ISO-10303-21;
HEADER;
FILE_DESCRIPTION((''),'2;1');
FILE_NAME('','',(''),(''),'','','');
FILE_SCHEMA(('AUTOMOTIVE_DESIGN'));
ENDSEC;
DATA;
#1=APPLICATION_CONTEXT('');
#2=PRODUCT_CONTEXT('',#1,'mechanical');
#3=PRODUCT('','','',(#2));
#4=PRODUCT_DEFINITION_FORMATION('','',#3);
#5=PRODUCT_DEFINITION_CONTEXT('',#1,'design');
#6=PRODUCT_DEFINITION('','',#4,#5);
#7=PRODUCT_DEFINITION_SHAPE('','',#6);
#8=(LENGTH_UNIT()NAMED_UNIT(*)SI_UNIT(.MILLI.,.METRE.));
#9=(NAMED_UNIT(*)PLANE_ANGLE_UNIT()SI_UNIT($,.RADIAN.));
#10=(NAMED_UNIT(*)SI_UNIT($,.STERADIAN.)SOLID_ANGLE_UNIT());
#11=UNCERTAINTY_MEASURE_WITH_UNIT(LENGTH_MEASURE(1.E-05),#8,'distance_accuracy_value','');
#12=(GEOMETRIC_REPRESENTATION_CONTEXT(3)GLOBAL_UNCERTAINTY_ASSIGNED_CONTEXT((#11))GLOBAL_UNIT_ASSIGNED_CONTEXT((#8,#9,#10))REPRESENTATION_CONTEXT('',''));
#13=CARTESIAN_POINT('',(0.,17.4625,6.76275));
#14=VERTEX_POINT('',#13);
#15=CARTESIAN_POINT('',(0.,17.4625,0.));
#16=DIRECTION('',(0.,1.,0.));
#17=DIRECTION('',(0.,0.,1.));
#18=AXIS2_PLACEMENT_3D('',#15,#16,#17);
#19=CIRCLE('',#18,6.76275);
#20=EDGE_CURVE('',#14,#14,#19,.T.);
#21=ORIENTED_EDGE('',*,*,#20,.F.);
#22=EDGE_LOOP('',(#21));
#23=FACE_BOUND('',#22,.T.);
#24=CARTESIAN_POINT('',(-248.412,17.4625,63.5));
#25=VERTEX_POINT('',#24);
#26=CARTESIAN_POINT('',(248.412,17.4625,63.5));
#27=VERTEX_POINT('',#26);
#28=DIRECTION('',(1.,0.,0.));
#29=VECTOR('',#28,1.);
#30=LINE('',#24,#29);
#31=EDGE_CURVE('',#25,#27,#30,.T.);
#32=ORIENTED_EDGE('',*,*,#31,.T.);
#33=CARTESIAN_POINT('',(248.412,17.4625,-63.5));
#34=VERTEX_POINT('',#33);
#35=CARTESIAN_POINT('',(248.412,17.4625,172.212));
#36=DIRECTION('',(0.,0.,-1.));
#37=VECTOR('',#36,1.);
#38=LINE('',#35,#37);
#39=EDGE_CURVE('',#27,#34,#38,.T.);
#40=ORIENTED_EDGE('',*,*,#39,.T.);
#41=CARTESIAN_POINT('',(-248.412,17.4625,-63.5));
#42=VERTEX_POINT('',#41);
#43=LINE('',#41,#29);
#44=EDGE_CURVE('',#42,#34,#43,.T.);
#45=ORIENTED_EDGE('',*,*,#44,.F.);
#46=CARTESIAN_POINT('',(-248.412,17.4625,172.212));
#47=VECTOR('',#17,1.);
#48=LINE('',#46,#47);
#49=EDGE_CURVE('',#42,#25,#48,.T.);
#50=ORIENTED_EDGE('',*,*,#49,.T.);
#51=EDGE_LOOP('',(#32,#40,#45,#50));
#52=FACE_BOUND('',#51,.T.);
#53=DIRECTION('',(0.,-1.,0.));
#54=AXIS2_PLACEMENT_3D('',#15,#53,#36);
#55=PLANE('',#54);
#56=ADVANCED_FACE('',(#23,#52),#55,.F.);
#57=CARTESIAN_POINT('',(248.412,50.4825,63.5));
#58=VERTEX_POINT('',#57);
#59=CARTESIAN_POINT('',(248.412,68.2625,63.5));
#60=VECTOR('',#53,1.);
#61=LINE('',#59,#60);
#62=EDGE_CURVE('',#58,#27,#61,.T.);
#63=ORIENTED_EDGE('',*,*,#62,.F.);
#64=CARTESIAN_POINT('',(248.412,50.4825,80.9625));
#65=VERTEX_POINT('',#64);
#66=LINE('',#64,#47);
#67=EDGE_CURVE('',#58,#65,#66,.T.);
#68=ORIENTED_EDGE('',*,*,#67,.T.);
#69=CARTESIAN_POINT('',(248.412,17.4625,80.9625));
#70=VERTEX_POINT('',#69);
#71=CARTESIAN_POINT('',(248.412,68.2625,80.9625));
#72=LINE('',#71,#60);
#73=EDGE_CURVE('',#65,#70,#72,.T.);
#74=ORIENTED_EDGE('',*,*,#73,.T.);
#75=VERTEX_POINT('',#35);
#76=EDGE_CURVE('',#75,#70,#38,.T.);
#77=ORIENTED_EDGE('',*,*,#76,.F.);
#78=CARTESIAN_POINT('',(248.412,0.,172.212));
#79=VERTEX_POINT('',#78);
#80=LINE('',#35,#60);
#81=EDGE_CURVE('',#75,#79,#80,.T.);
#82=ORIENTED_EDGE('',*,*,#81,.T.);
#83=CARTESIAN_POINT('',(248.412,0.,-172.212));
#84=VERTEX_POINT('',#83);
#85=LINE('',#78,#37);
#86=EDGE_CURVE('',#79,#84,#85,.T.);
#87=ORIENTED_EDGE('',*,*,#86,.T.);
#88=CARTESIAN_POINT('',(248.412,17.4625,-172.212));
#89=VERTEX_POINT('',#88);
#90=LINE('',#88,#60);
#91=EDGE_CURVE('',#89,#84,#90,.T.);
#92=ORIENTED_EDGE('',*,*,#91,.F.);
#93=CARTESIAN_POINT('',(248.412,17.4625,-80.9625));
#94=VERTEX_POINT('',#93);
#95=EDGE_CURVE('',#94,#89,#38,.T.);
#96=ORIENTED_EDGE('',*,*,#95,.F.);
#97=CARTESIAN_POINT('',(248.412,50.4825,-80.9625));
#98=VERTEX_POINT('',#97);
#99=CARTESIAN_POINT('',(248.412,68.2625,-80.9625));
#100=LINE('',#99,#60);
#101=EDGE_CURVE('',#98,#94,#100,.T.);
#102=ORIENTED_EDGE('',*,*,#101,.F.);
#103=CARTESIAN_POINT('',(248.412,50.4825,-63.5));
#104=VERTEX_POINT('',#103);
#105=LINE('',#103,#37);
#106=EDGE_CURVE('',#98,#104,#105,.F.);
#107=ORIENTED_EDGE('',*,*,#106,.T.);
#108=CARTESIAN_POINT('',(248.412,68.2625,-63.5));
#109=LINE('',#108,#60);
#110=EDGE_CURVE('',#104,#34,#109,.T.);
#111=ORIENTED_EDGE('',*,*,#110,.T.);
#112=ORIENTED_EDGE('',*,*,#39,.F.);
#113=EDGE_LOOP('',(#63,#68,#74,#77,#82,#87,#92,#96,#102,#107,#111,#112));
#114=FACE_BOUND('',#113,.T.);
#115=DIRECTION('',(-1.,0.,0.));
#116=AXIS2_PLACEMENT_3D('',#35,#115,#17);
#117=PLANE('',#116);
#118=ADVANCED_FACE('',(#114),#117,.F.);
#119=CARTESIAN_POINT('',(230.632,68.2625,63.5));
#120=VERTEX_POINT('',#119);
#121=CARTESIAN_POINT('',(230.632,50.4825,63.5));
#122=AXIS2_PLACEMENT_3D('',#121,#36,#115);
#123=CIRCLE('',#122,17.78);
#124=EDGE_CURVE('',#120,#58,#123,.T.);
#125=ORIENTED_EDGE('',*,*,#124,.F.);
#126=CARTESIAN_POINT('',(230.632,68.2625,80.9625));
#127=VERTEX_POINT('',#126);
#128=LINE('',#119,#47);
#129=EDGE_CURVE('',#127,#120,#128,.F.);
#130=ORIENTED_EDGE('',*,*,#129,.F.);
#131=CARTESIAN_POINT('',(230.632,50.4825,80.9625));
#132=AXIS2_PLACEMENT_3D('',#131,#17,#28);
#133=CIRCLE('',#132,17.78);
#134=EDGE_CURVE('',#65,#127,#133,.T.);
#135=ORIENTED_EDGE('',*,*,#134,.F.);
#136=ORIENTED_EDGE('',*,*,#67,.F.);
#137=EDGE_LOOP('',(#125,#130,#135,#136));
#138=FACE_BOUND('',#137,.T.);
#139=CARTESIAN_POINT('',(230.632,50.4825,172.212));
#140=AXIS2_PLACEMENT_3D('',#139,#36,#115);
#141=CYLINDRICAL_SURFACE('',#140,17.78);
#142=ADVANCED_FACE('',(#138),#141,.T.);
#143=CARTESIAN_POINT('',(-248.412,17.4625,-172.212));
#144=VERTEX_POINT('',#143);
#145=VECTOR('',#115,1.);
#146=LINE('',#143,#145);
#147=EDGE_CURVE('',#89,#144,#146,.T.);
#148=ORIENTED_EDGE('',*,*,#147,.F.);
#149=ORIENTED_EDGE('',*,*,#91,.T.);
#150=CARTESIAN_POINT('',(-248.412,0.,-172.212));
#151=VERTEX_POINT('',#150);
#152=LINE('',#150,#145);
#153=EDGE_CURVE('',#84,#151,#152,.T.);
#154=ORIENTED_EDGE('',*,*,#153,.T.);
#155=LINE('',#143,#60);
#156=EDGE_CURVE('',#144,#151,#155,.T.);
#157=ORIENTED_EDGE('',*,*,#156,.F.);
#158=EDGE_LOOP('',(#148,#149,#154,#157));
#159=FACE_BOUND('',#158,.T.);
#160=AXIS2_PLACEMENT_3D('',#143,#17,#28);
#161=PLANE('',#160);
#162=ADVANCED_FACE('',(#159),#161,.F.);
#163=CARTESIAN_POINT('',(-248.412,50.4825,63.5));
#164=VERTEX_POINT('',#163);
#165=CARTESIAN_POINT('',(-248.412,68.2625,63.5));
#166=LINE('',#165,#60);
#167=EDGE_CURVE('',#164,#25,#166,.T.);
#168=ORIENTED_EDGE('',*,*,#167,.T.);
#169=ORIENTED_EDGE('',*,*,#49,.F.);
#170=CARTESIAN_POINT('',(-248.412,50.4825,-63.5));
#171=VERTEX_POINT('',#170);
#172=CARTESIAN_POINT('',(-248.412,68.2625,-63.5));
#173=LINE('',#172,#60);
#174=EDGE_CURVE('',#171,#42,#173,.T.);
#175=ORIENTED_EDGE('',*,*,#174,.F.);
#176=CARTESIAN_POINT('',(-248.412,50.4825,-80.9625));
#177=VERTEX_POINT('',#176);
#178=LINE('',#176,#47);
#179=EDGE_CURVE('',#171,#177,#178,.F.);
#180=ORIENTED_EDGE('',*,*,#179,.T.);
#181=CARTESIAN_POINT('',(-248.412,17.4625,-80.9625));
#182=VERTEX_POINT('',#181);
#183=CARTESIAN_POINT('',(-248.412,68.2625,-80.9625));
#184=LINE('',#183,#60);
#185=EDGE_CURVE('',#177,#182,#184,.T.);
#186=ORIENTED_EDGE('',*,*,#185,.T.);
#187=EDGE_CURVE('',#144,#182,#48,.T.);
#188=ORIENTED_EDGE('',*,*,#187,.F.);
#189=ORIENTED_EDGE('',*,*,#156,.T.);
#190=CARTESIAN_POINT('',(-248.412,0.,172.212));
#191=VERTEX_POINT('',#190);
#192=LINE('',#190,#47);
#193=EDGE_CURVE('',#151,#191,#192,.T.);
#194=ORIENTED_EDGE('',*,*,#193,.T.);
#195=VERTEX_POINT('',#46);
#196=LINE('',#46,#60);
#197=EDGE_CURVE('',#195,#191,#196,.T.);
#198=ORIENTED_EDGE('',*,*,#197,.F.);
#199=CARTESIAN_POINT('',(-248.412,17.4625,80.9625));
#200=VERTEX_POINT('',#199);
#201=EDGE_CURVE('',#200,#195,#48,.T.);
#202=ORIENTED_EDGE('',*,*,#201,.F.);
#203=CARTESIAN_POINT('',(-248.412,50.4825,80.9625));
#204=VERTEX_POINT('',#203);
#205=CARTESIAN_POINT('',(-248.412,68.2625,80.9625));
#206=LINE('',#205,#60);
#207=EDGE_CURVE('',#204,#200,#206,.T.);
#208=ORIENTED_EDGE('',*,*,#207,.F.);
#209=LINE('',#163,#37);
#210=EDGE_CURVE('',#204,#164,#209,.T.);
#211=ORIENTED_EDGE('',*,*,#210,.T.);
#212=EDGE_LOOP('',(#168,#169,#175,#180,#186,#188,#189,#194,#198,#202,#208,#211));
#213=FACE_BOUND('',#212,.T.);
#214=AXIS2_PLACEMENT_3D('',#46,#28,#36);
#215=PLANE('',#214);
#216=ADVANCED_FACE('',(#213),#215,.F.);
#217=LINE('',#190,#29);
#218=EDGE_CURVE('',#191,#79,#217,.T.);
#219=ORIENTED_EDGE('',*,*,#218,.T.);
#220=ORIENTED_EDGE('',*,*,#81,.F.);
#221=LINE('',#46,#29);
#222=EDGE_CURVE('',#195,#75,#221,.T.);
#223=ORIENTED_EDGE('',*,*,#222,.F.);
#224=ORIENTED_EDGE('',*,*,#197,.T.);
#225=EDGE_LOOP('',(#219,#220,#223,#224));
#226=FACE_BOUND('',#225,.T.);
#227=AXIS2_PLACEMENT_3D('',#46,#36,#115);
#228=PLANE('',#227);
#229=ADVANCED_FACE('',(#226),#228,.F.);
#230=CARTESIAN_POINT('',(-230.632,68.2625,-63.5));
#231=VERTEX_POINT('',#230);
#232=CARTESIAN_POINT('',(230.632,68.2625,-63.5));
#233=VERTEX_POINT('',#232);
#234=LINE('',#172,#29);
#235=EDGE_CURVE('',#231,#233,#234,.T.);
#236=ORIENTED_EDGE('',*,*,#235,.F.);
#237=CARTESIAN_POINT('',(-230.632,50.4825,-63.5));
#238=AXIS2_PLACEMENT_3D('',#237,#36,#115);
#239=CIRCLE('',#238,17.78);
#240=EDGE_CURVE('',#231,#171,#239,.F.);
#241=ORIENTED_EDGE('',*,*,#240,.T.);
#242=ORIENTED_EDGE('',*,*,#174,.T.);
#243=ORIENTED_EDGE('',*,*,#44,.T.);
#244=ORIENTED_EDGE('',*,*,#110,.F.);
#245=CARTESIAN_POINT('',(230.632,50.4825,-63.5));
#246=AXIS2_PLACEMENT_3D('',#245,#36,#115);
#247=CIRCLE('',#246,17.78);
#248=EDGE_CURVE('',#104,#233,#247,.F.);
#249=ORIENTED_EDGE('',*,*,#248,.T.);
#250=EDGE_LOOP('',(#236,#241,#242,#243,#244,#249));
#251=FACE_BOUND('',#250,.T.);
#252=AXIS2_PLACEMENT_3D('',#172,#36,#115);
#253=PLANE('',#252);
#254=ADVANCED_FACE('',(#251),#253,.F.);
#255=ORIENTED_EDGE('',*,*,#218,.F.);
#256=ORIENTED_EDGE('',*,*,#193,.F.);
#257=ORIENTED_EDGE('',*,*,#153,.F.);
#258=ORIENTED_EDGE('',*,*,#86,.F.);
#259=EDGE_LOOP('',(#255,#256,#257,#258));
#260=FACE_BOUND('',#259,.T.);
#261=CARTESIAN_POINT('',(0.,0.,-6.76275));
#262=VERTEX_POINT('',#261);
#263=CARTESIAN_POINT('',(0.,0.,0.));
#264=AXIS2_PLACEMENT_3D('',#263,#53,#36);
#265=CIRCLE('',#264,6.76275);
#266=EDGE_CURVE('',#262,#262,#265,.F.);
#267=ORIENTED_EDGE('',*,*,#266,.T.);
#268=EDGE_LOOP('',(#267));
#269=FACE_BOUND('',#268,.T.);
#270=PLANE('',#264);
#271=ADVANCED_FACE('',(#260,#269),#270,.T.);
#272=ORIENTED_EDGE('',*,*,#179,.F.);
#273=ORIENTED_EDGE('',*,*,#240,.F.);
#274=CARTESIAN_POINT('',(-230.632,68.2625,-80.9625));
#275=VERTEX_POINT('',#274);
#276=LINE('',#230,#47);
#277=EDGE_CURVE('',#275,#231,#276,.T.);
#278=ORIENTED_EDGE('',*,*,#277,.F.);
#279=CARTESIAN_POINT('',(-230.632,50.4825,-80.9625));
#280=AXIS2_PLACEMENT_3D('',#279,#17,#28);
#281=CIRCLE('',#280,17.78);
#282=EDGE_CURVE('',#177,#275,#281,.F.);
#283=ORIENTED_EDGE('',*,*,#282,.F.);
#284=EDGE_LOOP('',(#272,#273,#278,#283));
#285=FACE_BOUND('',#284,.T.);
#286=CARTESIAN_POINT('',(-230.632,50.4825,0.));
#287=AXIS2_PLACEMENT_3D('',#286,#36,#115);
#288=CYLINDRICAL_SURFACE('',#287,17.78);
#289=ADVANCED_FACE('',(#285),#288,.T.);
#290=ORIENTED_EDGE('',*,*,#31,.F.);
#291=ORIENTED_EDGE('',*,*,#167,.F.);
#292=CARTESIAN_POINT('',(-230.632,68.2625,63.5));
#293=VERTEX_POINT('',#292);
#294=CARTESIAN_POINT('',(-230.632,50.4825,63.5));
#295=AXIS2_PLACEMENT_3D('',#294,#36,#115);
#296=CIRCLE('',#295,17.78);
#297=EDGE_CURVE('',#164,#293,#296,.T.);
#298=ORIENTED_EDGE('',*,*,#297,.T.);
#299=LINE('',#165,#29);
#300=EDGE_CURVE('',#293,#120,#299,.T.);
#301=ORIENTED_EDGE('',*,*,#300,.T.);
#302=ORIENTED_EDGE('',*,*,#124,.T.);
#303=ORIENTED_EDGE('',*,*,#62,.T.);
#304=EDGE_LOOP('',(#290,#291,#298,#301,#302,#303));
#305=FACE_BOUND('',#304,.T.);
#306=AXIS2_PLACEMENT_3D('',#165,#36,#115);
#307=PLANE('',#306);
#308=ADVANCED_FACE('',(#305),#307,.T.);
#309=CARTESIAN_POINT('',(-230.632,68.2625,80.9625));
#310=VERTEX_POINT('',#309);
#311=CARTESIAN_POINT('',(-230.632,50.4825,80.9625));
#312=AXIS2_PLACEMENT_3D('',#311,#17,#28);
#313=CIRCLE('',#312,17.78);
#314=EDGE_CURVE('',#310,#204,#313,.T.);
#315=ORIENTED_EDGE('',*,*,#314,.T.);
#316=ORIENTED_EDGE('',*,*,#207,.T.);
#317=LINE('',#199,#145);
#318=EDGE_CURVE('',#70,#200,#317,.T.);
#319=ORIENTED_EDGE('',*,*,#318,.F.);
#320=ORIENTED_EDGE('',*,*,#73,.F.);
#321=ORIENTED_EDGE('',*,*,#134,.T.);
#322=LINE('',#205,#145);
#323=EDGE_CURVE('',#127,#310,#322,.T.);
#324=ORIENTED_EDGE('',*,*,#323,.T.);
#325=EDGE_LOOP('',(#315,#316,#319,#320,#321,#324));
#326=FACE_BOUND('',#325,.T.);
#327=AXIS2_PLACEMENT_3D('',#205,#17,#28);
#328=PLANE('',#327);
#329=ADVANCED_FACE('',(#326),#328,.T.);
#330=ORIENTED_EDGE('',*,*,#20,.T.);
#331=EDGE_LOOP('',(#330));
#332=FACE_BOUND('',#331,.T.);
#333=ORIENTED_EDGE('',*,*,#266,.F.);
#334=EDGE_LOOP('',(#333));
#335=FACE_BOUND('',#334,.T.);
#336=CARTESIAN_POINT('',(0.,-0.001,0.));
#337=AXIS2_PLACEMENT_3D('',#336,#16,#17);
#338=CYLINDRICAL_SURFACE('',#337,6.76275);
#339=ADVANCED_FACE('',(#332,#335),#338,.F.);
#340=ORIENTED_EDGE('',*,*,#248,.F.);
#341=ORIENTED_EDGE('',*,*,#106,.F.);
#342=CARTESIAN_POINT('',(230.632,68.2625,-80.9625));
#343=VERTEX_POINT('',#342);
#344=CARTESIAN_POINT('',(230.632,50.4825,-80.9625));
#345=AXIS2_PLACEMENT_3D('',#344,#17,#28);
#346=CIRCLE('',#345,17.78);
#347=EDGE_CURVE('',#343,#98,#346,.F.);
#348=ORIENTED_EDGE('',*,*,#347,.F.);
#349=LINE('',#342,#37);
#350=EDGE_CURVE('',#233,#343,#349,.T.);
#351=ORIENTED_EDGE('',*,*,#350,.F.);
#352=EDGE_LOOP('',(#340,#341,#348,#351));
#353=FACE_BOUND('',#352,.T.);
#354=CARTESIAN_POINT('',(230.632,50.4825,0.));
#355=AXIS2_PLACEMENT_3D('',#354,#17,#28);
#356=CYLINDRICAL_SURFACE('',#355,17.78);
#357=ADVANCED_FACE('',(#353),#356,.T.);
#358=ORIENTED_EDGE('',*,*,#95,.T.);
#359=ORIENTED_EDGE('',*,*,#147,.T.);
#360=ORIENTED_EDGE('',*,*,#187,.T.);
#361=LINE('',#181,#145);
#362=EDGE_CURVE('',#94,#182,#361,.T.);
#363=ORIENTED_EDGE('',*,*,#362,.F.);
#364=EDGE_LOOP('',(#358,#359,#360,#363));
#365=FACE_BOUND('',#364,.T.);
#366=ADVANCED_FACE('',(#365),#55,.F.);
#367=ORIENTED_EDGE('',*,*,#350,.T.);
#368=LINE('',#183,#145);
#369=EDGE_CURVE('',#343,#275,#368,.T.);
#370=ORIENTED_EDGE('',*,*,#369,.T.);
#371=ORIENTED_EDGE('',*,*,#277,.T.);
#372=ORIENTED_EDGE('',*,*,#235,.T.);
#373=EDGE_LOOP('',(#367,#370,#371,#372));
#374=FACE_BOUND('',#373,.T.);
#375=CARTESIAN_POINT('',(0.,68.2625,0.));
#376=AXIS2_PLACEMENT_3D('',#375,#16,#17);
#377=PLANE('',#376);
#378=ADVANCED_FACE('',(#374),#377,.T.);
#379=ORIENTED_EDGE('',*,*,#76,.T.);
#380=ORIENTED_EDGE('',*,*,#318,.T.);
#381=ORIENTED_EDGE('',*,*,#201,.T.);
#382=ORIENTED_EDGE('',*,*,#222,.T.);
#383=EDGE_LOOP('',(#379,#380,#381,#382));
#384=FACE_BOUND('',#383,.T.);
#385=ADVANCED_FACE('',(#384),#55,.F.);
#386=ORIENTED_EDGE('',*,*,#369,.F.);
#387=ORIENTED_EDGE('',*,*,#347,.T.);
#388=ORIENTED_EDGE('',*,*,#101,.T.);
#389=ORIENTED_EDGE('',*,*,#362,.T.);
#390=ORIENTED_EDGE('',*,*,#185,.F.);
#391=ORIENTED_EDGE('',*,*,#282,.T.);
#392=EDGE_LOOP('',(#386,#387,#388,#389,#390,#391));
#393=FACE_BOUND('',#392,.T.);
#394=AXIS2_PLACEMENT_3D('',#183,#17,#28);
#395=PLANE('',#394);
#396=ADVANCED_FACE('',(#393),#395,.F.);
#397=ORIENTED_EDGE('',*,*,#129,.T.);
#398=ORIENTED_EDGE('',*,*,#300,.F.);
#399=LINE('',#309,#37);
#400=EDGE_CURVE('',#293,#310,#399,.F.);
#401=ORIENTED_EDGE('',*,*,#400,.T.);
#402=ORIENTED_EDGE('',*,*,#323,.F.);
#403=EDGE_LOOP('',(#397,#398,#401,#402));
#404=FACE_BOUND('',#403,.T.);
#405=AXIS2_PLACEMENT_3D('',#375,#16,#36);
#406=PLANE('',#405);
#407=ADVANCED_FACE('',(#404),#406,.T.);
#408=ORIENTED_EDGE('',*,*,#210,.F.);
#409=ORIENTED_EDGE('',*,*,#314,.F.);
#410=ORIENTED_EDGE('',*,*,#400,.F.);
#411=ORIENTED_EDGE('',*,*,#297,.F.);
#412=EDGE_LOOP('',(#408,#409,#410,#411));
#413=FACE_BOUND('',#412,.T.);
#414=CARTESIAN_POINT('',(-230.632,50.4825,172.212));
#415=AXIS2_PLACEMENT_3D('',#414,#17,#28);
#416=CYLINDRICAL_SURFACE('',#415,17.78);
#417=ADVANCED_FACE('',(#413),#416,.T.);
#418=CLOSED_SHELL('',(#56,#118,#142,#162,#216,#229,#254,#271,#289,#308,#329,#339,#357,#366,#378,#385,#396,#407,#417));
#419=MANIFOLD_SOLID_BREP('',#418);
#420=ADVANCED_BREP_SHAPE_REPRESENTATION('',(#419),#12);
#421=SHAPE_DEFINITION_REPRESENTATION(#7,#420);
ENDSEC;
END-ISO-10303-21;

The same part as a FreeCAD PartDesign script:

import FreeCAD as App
import Part
import Sketcher

V = App.Vector
Q = App.Units.Quantity


def edges_at(feature, points):
    """Names of the edges that pass closest to the given points."""
    edges = feature.Shape.Edges
    near = lambda p: min(range(len(edges)), key=lambda i: edges[i].distToShape(Part.Vertex(*p))[0])
    return sorted({f"Edge{near(p) + 1}" for p in points})

doc = App.newDocument("Part")
body = doc.addObject("PartDesign::Body", "Body")

sketch1 = doc.addObject("Sketcher::SketchObject", "Sketch")
body.addObject(sketch1)
sketch1.AttachmentSupport = (doc.XZ_Plane, [""])
sketch1.MapMode = "FlatFace"
sketch1.addGeometry([
    Part.LineSegment(V(-248.412, -172.212, 0), V(-248.412, 172.212, 0)),
    Part.LineSegment(V(-248.412, 172.212, 0), V(248.412, 172.212, 0)),
    Part.LineSegment(V(248.412, 172.212, 0), V(248.412, -172.212, 0)),
    Part.LineSegment(V(248.412, -172.212, 0), V(-248.412, -172.212, 0)),
], False)
sketch1.addConstraint([
    Sketcher.Constraint("Coincident", 0, 2, 1, 1),
    Sketcher.Constraint("Coincident", 1, 2, 2, 1),
    Sketcher.Constraint("Coincident", 2, 2, 3, 1),
    Sketcher.Constraint("Coincident", 3, 2, 0, 1),
    Sketcher.Constraint("Vertical", 0),
    Sketcher.Constraint("Horizontal", 1),
    Sketcher.Constraint("Vertical", 2),
    Sketcher.Constraint("Horizontal", 3),
    Sketcher.Constraint("Symmetric", 0, 2, 2, 2, -1, 1),
    Sketcher.Constraint("DistanceX", 1, 1, 1, 2, Q("19.56 in")),
    Sketcher.Constraint("DistanceY", 0, 1, 0, 2, Q("13.56 in")),
])
pad1 = doc.addObject("PartDesign::Pad", "Pad")
body.addObject(pad1)
pad1.Profile = sketch1
pad1.Length = Q("0.6875 in")
pad1.Reversed = True

sketch2 = doc.addObject("Sketcher::SketchObject", "Sketch001")
body.addObject(sketch2)
sketch2.AttachmentSupport = (doc.XZ_Plane, [""])
sketch2.MapMode = "FlatFace"
sketch2.AttachmentOffset = App.Placement(V(0, 0, -0.6875 * 25.4), App.Rotation())
sketch2.addGeometry(Part.Circle(V(0, 0, 0), V(0, 0, 1), 6.76275), False)
sketch2.addConstraint([
    Sketcher.Constraint("Coincident", 0, 3, -1, 1),
    Sketcher.Constraint("Diameter", 0, Q("0.5325 in")),
])
pocket1 = doc.addObject("PartDesign::Pocket", "Pocket")
body.addObject(pocket1)
pocket1.Profile = sketch2
pocket1.Type = "UpToFirst"
pocket1.Reversed = True

sketch3 = doc.addObject("Sketcher::SketchObject", "Sketch002")
body.addObject(sketch3)
sketch3.AttachmentSupport = (doc.XZ_Plane, [""])
sketch3.MapMode = "FlatFace"
sketch3.AttachmentOffset = App.Placement(V(0, 0, -0.6875 * 25.4), App.Rotation())
sketch3.addGeometry([
    Part.LineSegment(V(-248.412, -80.9625, 0), V(-248.412, -63.5, 0)),
    Part.LineSegment(V(-248.412, -63.5, 0), V(248.412, -63.5, 0)),
    Part.LineSegment(V(248.412, -63.5, 0), V(248.412, -80.9625, 0)),
    Part.LineSegment(V(248.412, -80.9625, 0), V(-248.412, -80.9625, 0)),
], False)
sketch3.addConstraint([
    Sketcher.Constraint("Coincident", 0, 2, 1, 1),
    Sketcher.Constraint("Coincident", 1, 2, 2, 1),
    Sketcher.Constraint("Coincident", 2, 2, 3, 1),
    Sketcher.Constraint("Coincident", 3, 2, 0, 1),
    Sketcher.Constraint("Vertical", 0),
    Sketcher.Constraint("Horizontal", 1),
    Sketcher.Constraint("Vertical", 2),
    Sketcher.Constraint("Horizontal", 3),
    Sketcher.Constraint("DistanceX", 1, 1, 1, 2, Q("19.56 in")),
    Sketcher.Constraint("DistanceY", 0, 2, -1, 1, Q("2.5 in")),
    Sketcher.Constraint("DistanceY", 0, 1, 0, 2, Q("0.6875 in")),
    Sketcher.Constraint("DistanceX", 0, 2, -1, 1, Q("9.78 in")),
])
pad2 = doc.addObject("PartDesign::Pad", "Pad001")
body.addObject(pad2)
pad2.Profile = sketch3
pad2.Length = Q("2 in")
pad2.Reversed = True
doc.recompute()

mirrored = doc.addObject("PartDesign::Mirrored", "Mirrored")
body.addObject(mirrored)
mirrored.Originals = [pad2]
mirrored.MirrorPlane = (doc.XY_Plane, [""])
body.Tip = mirrored
doc.recompute()

fillet = doc.addObject("PartDesign::Fillet", "Fillet")
body.addObject(fillet)
fillet.Base = (mirrored, edges_at(mirrored, [
    (-248.412, 68.263, -72.231),
    (248.412, 68.263, -72.231),
    (-248.412, 68.263, 72.231),
    (248.412, 68.263, 72.231),
]))
fillet.Radius = Q("0.7 in")

doc.recompute()
